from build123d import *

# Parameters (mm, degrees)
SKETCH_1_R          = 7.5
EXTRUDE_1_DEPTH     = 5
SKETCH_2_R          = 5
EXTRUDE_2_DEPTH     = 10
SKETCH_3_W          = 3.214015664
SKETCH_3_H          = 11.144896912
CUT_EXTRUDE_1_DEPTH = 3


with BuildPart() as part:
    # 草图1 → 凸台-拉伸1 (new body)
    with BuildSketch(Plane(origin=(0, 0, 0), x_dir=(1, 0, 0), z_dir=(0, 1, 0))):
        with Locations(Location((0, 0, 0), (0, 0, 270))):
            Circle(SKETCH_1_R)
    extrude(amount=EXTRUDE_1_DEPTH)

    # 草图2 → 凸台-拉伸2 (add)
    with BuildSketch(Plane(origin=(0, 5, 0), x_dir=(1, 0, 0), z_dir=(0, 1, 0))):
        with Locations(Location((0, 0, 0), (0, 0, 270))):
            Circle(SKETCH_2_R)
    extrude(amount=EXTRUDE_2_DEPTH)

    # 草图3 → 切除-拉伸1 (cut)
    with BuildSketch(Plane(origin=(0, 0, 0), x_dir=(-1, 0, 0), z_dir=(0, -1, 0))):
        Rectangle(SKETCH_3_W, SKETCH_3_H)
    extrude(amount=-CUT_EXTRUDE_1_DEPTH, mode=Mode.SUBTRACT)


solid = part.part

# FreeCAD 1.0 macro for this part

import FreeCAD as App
import Part
import Sketcher
from FreeCAD import Vector
Q = App.Units.Quantity

doc = App.newDocument("Part")
body = doc.addObject("PartDesign::Body", "Body")

# Sketch on XZ plane
sketch1 = doc.addObject("Sketcher::SketchObject", "Sketch")
body.addObject(sketch1)
sketch1.AttachmentSupport = (doc.XZ_Plane, [""])
sketch1.MapMode = "FlatFace"
sketch1.addGeometry(Part.Circle(Vector(0, 0, 0), Vector(0, 0, 1), 8), False)
sketch1.addConstraint([
    Sketcher.Constraint("Coincident", 0, 3, -1, 1),
    Sketcher.Constraint("Diameter", 0, Q("15 mm")),
])
pad1 = doc.addObject("PartDesign::Pad", "Pad")
body.addObject(pad1)
pad1.Profile = sketch1
pad1.Length = 5
pad1.Reversed = True

# Sketch on XZ plane
sketch2 = doc.addObject("Sketcher::SketchObject", "Sketch001")
body.addObject(sketch2)
sketch2.AttachmentSupport = (doc.XZ_Plane, [""])
sketch2.MapMode = "FlatFace"
sketch2.AttachmentOffset = App.Placement(Vector(0, 0, -5), App.Rotation())
sketch2.addGeometry(Part.Circle(Vector(0, 0, 0), Vector(0, 0, 1), 5), False)
sketch2.addConstraint([
    Sketcher.Constraint("Coincident", 0, 3, -1, 1),
    Sketcher.Constraint("Diameter", 0, Q("10 mm")),
])
pad2 = doc.addObject("PartDesign::Pad", "Pad001")
body.addObject(pad2)
pad2.Profile = sketch2
pad2.Length = 10
pad2.Reversed = True

# Sketch on XZ plane
sketch3 = doc.addObject("Sketcher::SketchObject", "Sketch002")
body.addObject(sketch3)
sketch3.AttachmentSupport = (doc.XZ_Plane, [""])
sketch3.MapMode = "FlatFace"
sketch3.addGeometry([
    Part.LineSegment(Vector(1.6, -5.6, 0), Vector(1.6, 5.6, 0)),
    Part.LineSegment(Vector(1.6, 5.6, 0), Vector(-1.6, 5.6, 0)),
    Part.LineSegment(Vector(-1.6, 5.6, 0), Vector(-1.6, -5.6, 0)),
    Part.LineSegment(Vector(-1.6, -5.6, 0), Vector(1.6, -5.6, 0)),
], False)
sketch3.addConstraint([
    Sketcher.Constraint("Coincident", 0, 2, 1, 1),
    Sketcher.Constraint("Coincident", 1, 2, 2, 1),
    Sketcher.Constraint("Coincident", 2, 2, 3, 1),
    Sketcher.Constraint("Coincident", 3, 2, 0, 1),
    Sketcher.Constraint("Vertical", 0),
    Sketcher.Constraint("Horizontal", 1),
    Sketcher.Constraint("Vertical", 2),
    Sketcher.Constraint("Horizontal", 3),
    Sketcher.Constraint("Symmetric", 0, 2, 2, 2, -1, 1),
    Sketcher.Constraint("DistanceX", 1, 2, 1, 1, Q("3.214016 mm")),
    Sketcher.Constraint("DistanceY", 0, 1, 0, 2, Q("11.144897 mm")),
])
pocket1 = doc.addObject("PartDesign::Pocket", "Pocket")
body.addObject(pocket1)
pocket1.Profile = sketch3
pocket1.Length = 3

doc.recompute()
